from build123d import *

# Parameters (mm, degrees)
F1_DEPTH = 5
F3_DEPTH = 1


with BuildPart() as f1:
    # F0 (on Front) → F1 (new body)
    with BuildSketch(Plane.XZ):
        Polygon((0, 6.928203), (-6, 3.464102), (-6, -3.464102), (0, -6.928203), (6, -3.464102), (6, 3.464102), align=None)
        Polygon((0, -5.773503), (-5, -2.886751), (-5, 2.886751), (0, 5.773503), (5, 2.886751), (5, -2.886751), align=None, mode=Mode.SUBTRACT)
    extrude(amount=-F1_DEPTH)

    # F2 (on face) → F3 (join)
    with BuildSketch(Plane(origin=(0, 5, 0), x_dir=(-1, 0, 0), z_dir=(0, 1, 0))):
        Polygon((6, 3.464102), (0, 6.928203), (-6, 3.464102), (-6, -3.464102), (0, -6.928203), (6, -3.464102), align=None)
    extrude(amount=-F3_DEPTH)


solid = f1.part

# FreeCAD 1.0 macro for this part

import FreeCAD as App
import Part
import Sketcher
from FreeCAD import Vector
Q = App.Units.Quantity


def add_polygon(sketch, points):
    """Adds a closed chain of lines whose ends are joined by coincident constraints."""
    first, n = sketch.GeometryCount, len(points)
    for a, b in zip(points, points[1:] + points[:1]):
        sketch.addGeometry(Part.LineSegment(App.Vector(*a, 0), App.Vector(*b, 0)), False)
    for i in range(n):
        sketch.addConstraint(Sketcher.Constraint("Coincident", first + i, 2, first + (i + 1) % n, 1))

doc = App.newDocument("Part")
body = doc.addObject("PartDesign::Body", "Body")

sketch1 = body.newObject("Sketcher::SketchObject", "Sketch")
sketch1.AttachmentSupport = (doc.getObject("XZ_Plane"), [""])
sketch1.MapMode = "FlatFace"
add_polygon(sketch1, [(0, 7), (-6, 3), (-6, -3), (0, -7), (6, -3), (6, 3)])
add_polygon(sketch1, [(5, -3), (0, -6), (-5, -3), (-5, 3), (0, 6), (5, 3)])
sketch1.addConstraint([
    Sketcher.Constraint("Vertical", 1),
    Sketcher.Constraint("Vertical", 4),
    Sketcher.Constraint("Vertical", 8),
    Sketcher.Constraint("Vertical", 11),
    Sketcher.Constraint("Symmetric", 0, 2, 3, 2, -1, 1),
    Sketcher.Constraint("Symmetric", 2, 2, 5, 2, -1, 1),
    Sketcher.Constraint("Symmetric", 6, 2, 9, 2, -1, 1),
    Sketcher.Constraint("Symmetric", 7, 2, 10, 2, -1, 1),
    Sketcher.Constraint("PointOnObject", 2, 2, -2),
    Sketcher.Constraint("PointOnObject", 6, 2, -2),
    Sketcher.Constraint("Parallel", 2, 5),
    Sketcher.Constraint("Parallel", 3, 6),
    Sketcher.Constraint("Parallel", 5, 7),
    Sketcher.Constraint("Parallel", 6, 9),
    Sketcher.Constraint("Horizontal", 1, 2, 3, 2),
    Sketcher.Constraint("Angle", 0, Q("-150.000004 deg")),
    Sketcher.Constraint("DistanceX", 0, 2, -1, 1, 6.0),
    Sketcher.Constraint("DistanceX", 7, 2, -1, 1, 5.0),
    Sketcher.Constraint("DistanceY", 8, 1, 8, 2, 5.773502),
    Sketcher.Constraint("DistanceY", -1, 1, 0, 2, 3.464102),
])
pad1 = body.newObject("PartDesign::Pad", "Pad")
pad1.Profile = sketch1
pad1.Length = 5
pad1.Reversed = True

sketch2 = body.newObject("Sketcher::SketchObject", "Sketch001")
sketch2.AttachmentSupport = (doc.getObject("XZ_Plane"), [""])
sketch2.MapMode = "FlatFace"
sketch2.AttachmentOffset = App.Placement(Vector(0, 0, -5), App.Rotation())
add_polygon(sketch2, [(-6, 3), (0, 7), (6, 3), (6, -3), (0, -7), (-6, -3)])
sketch2.addConstraint([
    Sketcher.Constraint("Vertical", 2),
    Sketcher.Constraint("Vertical", 5),
    Sketcher.Constraint("Symmetric", 0, 2, 3, 2, -1, 1),
    Sketcher.Constraint("Symmetric", 1, 2, 4, 2, -1, 1),
    Sketcher.Constraint("PointOnObject", 0, 2, -2),
    Sketcher.Constraint("Parallel", 0, 3),
    Sketcher.Constraint("Horizontal", 2, 2, 4, 2),
    Sketcher.Constraint("Angle", 0, Q("29.999996 deg")),
    Sketcher.Constraint("DistanceX", -1, 1, 1, 2, 6.0),
    Sketcher.Constraint("DistanceY", -1, 1, 1, 2, 3.464102),
])
pad2 = body.newObject("PartDesign::Pad", "Pad001")
pad2.Profile = sketch2
pad2.Length = 1

doc.recompute()
